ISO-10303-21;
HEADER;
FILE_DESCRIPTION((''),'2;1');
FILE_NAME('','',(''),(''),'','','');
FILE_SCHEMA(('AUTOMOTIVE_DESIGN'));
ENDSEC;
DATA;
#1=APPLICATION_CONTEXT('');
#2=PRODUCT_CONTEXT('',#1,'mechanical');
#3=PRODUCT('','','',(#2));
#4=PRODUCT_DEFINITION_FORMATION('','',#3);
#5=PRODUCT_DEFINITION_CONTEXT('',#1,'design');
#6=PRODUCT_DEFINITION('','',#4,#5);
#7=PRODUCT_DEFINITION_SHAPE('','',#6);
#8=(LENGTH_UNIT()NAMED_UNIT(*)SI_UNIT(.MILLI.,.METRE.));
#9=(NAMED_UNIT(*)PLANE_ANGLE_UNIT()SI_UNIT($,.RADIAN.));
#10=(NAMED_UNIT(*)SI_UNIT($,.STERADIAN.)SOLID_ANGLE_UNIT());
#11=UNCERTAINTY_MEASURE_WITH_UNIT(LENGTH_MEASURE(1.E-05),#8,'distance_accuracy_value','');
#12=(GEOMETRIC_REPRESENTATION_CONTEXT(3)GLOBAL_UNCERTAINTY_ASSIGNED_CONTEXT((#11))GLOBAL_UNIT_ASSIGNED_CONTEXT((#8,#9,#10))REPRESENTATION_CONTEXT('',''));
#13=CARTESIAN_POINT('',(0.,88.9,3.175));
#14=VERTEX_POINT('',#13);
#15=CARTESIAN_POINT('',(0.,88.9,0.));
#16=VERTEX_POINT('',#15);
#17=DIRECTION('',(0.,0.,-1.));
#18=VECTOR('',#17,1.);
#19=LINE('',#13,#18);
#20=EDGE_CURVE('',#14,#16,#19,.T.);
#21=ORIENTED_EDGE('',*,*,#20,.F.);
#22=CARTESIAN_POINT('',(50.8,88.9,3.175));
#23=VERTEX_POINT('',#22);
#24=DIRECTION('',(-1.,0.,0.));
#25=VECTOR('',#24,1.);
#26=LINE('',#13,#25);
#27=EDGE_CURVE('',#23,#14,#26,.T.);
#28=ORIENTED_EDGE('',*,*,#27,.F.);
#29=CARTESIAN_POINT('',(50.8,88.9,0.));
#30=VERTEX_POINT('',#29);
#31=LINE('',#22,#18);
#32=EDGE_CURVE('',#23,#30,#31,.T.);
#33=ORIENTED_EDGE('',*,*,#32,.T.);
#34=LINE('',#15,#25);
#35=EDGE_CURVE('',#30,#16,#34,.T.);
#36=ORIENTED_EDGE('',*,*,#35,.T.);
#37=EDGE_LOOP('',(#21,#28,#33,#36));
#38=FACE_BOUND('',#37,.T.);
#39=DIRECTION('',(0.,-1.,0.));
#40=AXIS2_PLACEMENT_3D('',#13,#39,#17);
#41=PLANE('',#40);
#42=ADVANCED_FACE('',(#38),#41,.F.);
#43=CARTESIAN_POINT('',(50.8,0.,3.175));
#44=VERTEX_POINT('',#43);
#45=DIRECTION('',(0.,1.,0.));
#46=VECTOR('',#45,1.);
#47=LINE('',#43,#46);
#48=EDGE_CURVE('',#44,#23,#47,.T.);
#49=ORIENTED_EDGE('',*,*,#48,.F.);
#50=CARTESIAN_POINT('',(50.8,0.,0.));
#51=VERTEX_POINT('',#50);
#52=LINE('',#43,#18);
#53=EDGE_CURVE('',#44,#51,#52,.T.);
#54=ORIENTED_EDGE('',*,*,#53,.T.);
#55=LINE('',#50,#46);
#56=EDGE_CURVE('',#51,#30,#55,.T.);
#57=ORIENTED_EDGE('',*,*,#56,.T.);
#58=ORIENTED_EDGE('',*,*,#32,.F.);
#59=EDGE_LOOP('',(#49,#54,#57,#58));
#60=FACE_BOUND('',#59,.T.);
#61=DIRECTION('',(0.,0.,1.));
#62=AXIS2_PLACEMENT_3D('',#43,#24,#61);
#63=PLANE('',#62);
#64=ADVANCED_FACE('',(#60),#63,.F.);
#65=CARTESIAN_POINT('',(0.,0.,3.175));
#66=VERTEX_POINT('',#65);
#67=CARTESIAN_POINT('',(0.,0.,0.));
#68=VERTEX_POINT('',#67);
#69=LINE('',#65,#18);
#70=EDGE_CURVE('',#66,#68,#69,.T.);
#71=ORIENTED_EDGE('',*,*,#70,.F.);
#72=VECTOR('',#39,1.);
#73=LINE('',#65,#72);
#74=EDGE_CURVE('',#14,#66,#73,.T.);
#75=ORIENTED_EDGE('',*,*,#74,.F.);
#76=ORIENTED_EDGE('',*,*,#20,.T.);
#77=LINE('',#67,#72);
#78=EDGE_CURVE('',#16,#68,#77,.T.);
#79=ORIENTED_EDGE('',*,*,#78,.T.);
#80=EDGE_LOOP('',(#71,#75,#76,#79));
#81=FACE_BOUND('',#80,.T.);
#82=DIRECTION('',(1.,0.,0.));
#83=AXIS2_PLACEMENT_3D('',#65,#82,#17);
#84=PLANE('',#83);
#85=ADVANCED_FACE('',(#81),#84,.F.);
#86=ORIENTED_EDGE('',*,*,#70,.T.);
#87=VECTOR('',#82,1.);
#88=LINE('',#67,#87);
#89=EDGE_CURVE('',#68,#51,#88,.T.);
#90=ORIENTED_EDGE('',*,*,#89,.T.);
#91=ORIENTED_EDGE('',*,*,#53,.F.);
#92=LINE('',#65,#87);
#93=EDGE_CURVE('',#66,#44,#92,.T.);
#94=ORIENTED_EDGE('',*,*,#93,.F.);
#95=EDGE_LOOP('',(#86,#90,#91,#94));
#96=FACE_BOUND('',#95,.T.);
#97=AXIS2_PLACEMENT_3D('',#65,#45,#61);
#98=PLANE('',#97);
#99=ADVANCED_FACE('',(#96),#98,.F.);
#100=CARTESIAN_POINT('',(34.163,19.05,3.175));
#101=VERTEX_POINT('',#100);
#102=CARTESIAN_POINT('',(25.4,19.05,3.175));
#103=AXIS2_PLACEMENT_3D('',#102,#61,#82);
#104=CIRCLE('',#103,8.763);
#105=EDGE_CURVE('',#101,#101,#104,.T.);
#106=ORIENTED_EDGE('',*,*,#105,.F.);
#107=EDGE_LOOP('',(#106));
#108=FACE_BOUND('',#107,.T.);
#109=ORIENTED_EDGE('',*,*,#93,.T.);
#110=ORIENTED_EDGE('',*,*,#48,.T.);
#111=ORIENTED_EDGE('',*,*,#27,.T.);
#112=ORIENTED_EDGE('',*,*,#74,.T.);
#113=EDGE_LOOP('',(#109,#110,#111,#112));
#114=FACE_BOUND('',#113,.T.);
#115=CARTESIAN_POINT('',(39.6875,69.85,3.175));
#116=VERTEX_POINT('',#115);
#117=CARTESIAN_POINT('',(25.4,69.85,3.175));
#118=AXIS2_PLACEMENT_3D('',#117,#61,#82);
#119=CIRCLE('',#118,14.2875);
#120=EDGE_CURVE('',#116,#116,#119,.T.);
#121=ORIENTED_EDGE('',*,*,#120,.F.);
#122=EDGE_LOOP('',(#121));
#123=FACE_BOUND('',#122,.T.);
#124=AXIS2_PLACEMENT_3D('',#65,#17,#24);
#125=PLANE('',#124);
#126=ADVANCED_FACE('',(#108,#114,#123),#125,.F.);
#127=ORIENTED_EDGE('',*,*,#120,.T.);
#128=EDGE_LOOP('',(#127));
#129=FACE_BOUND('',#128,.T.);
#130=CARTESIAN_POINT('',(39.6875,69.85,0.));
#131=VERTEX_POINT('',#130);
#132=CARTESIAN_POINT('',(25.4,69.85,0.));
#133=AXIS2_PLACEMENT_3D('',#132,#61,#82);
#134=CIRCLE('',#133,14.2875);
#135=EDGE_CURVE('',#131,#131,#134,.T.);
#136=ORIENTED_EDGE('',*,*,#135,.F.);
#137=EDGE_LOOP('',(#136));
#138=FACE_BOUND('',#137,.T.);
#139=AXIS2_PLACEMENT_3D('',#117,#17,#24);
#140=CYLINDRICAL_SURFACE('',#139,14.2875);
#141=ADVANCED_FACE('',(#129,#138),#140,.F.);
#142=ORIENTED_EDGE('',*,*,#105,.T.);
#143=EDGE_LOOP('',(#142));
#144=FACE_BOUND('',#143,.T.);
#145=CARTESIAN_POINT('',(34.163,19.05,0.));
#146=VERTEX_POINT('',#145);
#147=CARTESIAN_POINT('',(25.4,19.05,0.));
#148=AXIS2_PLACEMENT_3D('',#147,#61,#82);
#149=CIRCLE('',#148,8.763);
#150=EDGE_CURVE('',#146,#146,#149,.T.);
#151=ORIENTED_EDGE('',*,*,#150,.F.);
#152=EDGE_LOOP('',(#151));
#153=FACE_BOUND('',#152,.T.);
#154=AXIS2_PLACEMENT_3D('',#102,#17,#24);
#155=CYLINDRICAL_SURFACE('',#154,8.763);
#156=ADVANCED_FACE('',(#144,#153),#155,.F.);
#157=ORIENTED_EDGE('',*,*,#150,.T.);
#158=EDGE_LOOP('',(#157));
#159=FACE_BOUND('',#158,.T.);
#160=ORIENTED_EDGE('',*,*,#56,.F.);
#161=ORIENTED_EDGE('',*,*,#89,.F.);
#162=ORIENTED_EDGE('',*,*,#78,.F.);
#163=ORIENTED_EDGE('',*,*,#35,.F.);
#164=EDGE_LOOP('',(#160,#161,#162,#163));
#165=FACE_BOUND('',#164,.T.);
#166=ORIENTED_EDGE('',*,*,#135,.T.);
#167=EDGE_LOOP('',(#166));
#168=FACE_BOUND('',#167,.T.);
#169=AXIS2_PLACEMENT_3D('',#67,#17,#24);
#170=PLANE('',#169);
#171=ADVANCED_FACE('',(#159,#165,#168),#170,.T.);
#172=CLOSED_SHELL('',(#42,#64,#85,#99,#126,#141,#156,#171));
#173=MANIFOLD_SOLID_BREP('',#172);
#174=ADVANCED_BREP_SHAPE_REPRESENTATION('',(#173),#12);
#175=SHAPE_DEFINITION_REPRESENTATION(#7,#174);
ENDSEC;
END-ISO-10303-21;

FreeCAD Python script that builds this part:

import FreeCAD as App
import Part
import Sketcher
Q = App.Units.Quantity

doc = App.newDocument("Part")
body = doc.addObject("PartDesign::Body", "Body")

# Sketch on XY plane
sketch1 = body.newObject("Sketcher::SketchObject", "Sketch")
sketch1.AttachmentSupport = (doc.getObject("XY_Plane"), [""])
sketch1.MapMode = "FlatFace"
sketch1.addGeometry([
    Part.LineSegment(App.Vector(0, 88.9, 0), App.Vector(0, 0, 0)),  # 0
    Part.LineSegment(App.Vector(0, 0, 0), App.Vector(50.8, 0, 0)),  # 1
    Part.LineSegment(App.Vector(50.8, 0, 0), App.Vector(50.8, 88.9, 0)),  # 2
    Part.LineSegment(App.Vector(50.8, 88.9, 0), App.Vector(0, 88.9, 0)),  # 3
    Part.Circle(App.Vector(25.4, 19.05, 0), App.Vector(0, 0, 1), 8.763),  # 4
    Part.Circle(App.Vector(25.4, 69.85, 0), App.Vector(0, 0, 1), 14.2875),  # 5
], False)
sketch1.addConstraint([
    Sketcher.Constraint("Coincident", 0, 2, 1, 1),
    Sketcher.Constraint("Coincident", 1, 2, 2, 1),
    Sketcher.Constraint("Coincident", 2, 2, 3, 1),
    Sketcher.Constraint("Coincident", 3, 2, 0, 1),
    Sketcher.Constraint("Vertical", 0),
    Sketcher.Constraint("Horizontal", 1),
    Sketcher.Constraint("Vertical", 2),
    Sketcher.Constraint("Horizontal", 3),
    Sketcher.Constraint("Coincident", 0, 2, -1, 1),
    Sketcher.Constraint("Vertical", 4, 3, 5, 3),
    Sketcher.Constraint("Diameter", 4, Q("0.69 in")),
    Sketcher.Constraint("DistanceX", 1, 1, 1, 2, Q("2 in")),
    Sketcher.Constraint("Diameter", 5, Q("1.125 in")),
    Sketcher.Constraint("DistanceY", 0, 2, 0, 1, Q("3.5 in")),
    Sketcher.Constraint("DistanceX", -1, 1, 4, 3, Q("1 in")),
    Sketcher.Constraint("DistanceY", 4, 3, 5, 3, Q("2 in")),
    Sketcher.Constraint("DistanceY", -1, 1, 4, 3, Q("0.75 in")),
])
pad1 = body.newObject("PartDesign::Pad", "Pad")
pad1.Profile = sketch1
pad1.Length = Q("0.125 in")

doc.recompute()
